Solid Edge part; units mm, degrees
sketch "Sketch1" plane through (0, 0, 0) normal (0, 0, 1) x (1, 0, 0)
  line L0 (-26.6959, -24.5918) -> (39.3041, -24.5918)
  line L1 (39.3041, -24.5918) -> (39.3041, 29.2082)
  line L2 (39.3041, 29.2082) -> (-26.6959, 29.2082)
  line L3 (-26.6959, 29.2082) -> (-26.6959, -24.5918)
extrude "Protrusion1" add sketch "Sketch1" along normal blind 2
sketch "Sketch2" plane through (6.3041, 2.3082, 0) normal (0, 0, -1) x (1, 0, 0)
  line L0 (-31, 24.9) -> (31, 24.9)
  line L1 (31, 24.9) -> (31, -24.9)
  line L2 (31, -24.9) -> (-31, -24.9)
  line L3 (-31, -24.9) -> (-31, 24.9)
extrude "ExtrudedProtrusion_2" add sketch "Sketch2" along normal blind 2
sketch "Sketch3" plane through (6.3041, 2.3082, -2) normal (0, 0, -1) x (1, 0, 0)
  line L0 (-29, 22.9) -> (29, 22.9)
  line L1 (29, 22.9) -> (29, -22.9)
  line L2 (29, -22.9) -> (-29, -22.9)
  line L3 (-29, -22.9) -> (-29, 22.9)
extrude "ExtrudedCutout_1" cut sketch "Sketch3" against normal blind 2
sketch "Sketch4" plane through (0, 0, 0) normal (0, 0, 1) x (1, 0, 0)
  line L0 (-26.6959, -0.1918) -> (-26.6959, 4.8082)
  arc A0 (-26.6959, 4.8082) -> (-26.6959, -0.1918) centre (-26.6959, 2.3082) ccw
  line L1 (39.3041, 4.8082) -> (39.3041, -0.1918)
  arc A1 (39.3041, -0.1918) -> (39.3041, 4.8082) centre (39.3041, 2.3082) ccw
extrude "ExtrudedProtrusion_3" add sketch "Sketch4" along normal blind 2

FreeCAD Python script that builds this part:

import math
import FreeCAD as App
import Part
import Sketcher


def add_polygon(sketch, points):
    """Adds a closed chain of lines whose ends are joined by coincident constraints."""
    first, n = sketch.GeometryCount, len(points)
    for a, b in zip(points, points[1:] + points[:1]):
        sketch.addGeometry(Part.LineSegment(App.Vector(*a, 0), App.Vector(*b, 0)), False)
    for i in range(n):
        sketch.addConstraint(Sketcher.Constraint("Coincident", first + i, 2, first + (i + 1) % n, 1))

doc = App.newDocument("Part")
params = doc.addObject("Spreadsheet::Sheet", "Params")
for row, (alias, value) in enumerate([
    ("sketch1_width", "66 mm"),
    ("sketch1_height", "53.8 mm"),
    ("pad1_length", "2 mm"),
    ("sketch2_width", "62 mm"),
    ("sketch2_height", "49.8 mm"),
    ("pad2_length", "2 mm"),
    ("sketch3_width", "58 mm"),
    ("sketch3_height", "45.8 mm"),
    ("pocket1_length", "2 mm"),
    ("sketch4_radius", "2.5 mm"),
    ("pad3_length", "2 mm"),
], start=1):
    params.set(f"A{row}", alias)
    params.set(f"B{row}", "=" + value)
    params.setAlias(f"B{row}", alias)

body = doc.addObject("PartDesign::Body", "Body")

sketch1 = body.newObject("Sketcher::SketchObject", "Sketch")
sketch1.AttachmentSupport = (doc.getObject("XY_Plane"), [""])
sketch1.MapMode = "FlatFace"
add_polygon(sketch1, [(-27, 29), (-27, -25), (39, -25), (39, 29)])
sketch1.addConstraint([
    Sketcher.Constraint("Vertical", 0),
    Sketcher.Constraint("Horizontal", 1),
    Sketcher.Constraint("Vertical", 2),
    Sketcher.Constraint("Horizontal", 3),
    Sketcher.Constraint("DistanceX", 1, 1, 1, 2, 66.0),
    Sketcher.Constraint("DistanceY", 0, 2, 0, 1, 53.8),
    Sketcher.Constraint("DistanceX", 0, 2, -1, 1, 26.696),
    Sketcher.Constraint("DistanceY", 0, 2, -1, 1, 24.5918),
])
sketch1.setExpression("Constraints[8]", "Params.sketch1_width")
sketch1.setExpression("Constraints[9]", "Params.sketch1_height")
pad1 = body.newObject("PartDesign::Pad", "Pad")
pad1.Profile = sketch1
pad1.setExpression("Length", "Params.pad1_length")

sketch2 = body.newObject("Sketcher::SketchObject", "Sketch001")
sketch2.AttachmentSupport = (doc.getObject("XY_Plane"), [""])
sketch2.MapMode = "FlatFace"
add_polygon(sketch2, [(37, -23), (-25, -23), (-25, 27), (37, 27)])
sketch2.addConstraint([
    Sketcher.Constraint("Horizontal", 0),
    Sketcher.Constraint("Vertical", 1),
    Sketcher.Constraint("Horizontal", 2),
    Sketcher.Constraint("Vertical", 3),
    Sketcher.Constraint("DistanceX", 0, 2, 0, 1, 62.0),
    Sketcher.Constraint("DistanceY", 1, 1, 1, 2, 49.8),
    Sketcher.Constraint("DistanceX", 0, 2, -1, 1, 24.696),
    Sketcher.Constraint("DistanceY", 0, 2, -1, 1, 22.5918),
])
sketch2.setExpression("Constraints[8]", "Params.sketch2_width")
sketch2.setExpression("Constraints[9]", "Params.sketch2_height")
pad2 = body.newObject("PartDesign::Pad", "Pad001")
pad2.Profile = sketch2
pad2.setExpression("Length", "Params.pad2_length")
pad2.Reversed = True

sketch3 = body.newObject("Sketcher::SketchObject", "Sketch002")
sketch3.AttachmentSupport = (doc.getObject("XY_Plane"), [""])
sketch3.MapMode = "FlatFace"
sketch3.AttachmentOffset = App.Placement(App.Vector(0, 0, -2), App.Rotation())
add_polygon(sketch3, [(35, -21), (-23, -21), (-23, 25), (35, 25)])
sketch3.addConstraint([
    Sketcher.Constraint("Horizontal", 0),
    Sketcher.Constraint("Vertical", 1),
    Sketcher.Constraint("Horizontal", 2),
    Sketcher.Constraint("Vertical", 3),
    Sketcher.Constraint("DistanceX", 0, 2, 0, 1, 58.0),
    Sketcher.Constraint("DistanceY", 1, 1, 1, 2, 45.8),
    Sketcher.Constraint("DistanceX", 0, 2, -1, 1, 22.696),
    Sketcher.Constraint("DistanceY", 0, 2, -1, 1, 20.5918),
])
sketch3.setExpression("Constraints[8]", "Params.sketch3_width")
sketch3.setExpression("Constraints[9]", "Params.sketch3_height")
pocket1 = body.newObject("PartDesign::Pocket", "Pocket")
pocket1.Profile = sketch3
pocket1.setExpression("Length", "Params.pocket1_length")
pocket1.Reversed = True

sketch4 = body.newObject("Sketcher::SketchObject", "Sketch003")
sketch4.AttachmentSupport = (doc.getObject("XY_Plane"), [""])
sketch4.MapMode = "FlatFace"
sketch4.addGeometry([
    Part.ArcOfCircle(Part.Circle(App.Vector(-26.7, 2.3, 0), App.Vector(0, 0, 1), 2.5), math.radians(90), math.radians(270)),
    Part.LineSegment(App.Vector(-26.7, -0.2, 0), App.Vector(-26.7, 4.8, 0)),
    Part.ArcOfCircle(Part.Circle(App.Vector(39.3, 2.3, 0), App.Vector(0, 0, 1), 2.5), math.radians(-90), math.radians(90)),
    Part.LineSegment(App.Vector(39.3, 4.8, 0), App.Vector(39.3, -0.2, 0)),
], False)
sketch4.addConstraint([
    Sketcher.Constraint("Coincident", 0, 1, 1, 2),
    Sketcher.Constraint("Coincident", 1, 1, 0, 2),
    Sketcher.Constraint("Coincident", 2, 1, 3, 2),
    Sketcher.Constraint("Coincident", 3, 1, 2, 2),
    Sketcher.Constraint("Vertical", 1),
    Sketcher.Constraint("Vertical", 3),
    Sketcher.Constraint("Equal", 0, 2),
    Sketcher.Constraint("Horizontal", 0, 3, 2, 3),
    Sketcher.Constraint("Radius", 0, 2.5),
    Sketcher.Constraint("DistanceX", 0, 3, 2, 3, 66.0),
    Sketcher.Constraint("DistanceX", 0, 1, 2, 3, 66.0),
    Sketcher.Constraint("DistanceX", 1, 1, 2, 1, 66.0),
    Sketcher.Constraint("DistanceX", 0, 3, -1, 1, 26.696),
    Sketcher.Constraint("DistanceY", -1, 1, 0, 3, 2.3082),
])
sketch4.setExpression("Constraints[8]", "Params.sketch4_radius")
pad3 = body.newObject("PartDesign::Pad", "Pad002")
pad3.Profile = sketch4
pad3.setExpression("Length", "Params.pad3_length")

doc.recompute()
